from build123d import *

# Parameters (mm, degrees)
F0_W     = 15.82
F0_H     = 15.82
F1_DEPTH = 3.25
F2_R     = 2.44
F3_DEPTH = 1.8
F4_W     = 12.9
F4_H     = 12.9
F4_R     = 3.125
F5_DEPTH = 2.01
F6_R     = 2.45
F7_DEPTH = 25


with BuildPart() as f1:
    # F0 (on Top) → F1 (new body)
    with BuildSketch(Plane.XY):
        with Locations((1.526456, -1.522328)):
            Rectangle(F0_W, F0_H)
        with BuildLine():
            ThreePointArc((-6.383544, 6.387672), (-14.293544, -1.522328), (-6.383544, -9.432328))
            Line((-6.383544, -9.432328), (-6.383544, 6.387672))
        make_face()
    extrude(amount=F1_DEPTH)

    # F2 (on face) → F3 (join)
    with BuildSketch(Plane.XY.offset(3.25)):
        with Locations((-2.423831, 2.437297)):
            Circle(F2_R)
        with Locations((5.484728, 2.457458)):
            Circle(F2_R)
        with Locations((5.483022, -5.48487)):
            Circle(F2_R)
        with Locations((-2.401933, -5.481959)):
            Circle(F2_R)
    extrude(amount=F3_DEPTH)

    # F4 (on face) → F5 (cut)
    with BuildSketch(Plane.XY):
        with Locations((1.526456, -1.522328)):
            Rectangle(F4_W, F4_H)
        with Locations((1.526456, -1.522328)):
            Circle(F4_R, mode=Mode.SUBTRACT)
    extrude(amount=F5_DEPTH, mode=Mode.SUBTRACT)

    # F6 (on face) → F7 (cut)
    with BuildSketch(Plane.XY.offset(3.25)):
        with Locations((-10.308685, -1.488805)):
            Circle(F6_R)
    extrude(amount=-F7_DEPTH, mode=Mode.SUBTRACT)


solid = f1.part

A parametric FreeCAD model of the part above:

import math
import FreeCAD as App
import Part
import Sketcher

V = App.Vector

doc = App.newDocument("Part")
body = doc.addObject("PartDesign::Body", "Body")

# Sketch on XY plane
sketch1 = body.newObject("Sketcher::SketchObject", "Sketch")
sketch1.AttachmentSupport = (doc.getObject("XY_Plane"), [""])
sketch1.MapMode = "FlatFace"
sketch1.addGeometry([
    Part.LineSegment(V(-6.383544, -9.432328, 0), V(9.436456, -9.432328, 0)),
    Part.LineSegment(V(9.436456, -9.432328, 0), V(9.436456, 6.387672, 0)),
    Part.LineSegment(V(9.436456, 6.387672, 0), V(-6.383544, 6.387672, 0)),
    Part.ArcOfCircle(Part.Circle(V(-6.383544, -1.522328, 0), V(0, 0, 1), 7.91), math.radians(90), math.radians(270)),
], False)
sketch1.addConstraint([
    Sketcher.Constraint("Coincident", 0, 2, 1, 1),
    Sketcher.Constraint("Coincident", 1, 2, 2, 1),
    Sketcher.Constraint("Tangent", 2, 2, 3, 1),
    Sketcher.Constraint("Tangent", 3, 2, 0, 1),
    Sketcher.Constraint("Horizontal", 0),
    Sketcher.Constraint("Vertical", 1),
    Sketcher.Constraint("Horizontal", 2),
    Sketcher.Constraint("Equal", 2, 1),
    Sketcher.Constraint("Radius", 3, 7.91),
    Sketcher.Constraint("DistanceX", 3, 3, -1, 1, 6.383544),
    Sketcher.Constraint("DistanceY", 3, 3, -1, 1, 1.522328),
])
pad1 = body.newObject("PartDesign::Pad", "Pad")
pad1.Profile = sketch1
pad1.Length = 3.25

# Sketch on XY plane
sketch2 = body.newObject("Sketcher::SketchObject", "Sketch001")
sketch2.AttachmentSupport = (doc.getObject("XY_Plane"), [""])
sketch2.MapMode = "FlatFace"
sketch2.AttachmentOffset = App.Placement(V(0, 0, 3.25), App.Rotation())
sketch2.addGeometry([
    Part.Circle(V(-2.423831, 2.437297, 0), V(0, 0, 1), 2.44),
    Part.Circle(V(5.484728, 2.457458, 0), V(0, 0, 1), 2.44),
    Part.Circle(V(5.483022, -5.48487, 0), V(0, 0, 1), 2.44),
    Part.Circle(V(-2.401933, -5.481959, 0), V(0, 0, 1), 2.44),
], False)
sketch2.addConstraint([
    Sketcher.Constraint("Equal", 0, 1),
    Sketcher.Constraint("Equal", 1, 2),
    Sketcher.Constraint("Equal", 2, 3),
    Sketcher.Constraint("Diameter", 0, 4.88),
    Sketcher.Constraint("DistanceX", 0, 3, -1, 1, 2.423831),
    Sketcher.Constraint("DistanceY", 2, 3, -1, 1, 5.48487),
    Sketcher.Constraint("DistanceY", 3, 3, -1, 1, 5.481959),
    Sketcher.Constraint("DistanceX", 0, 3, 1, 3, 7.908559),
    Sketcher.Constraint("DistanceY", 0, 3, 1, 3, 0.020161),
    Sketcher.Constraint("DistanceX", 3, 3, 1, 3, 7.886661),
    Sketcher.Constraint("DistanceY", -1, 1, 0, 3, 2.437297),
    Sketcher.Constraint("DistanceX", -1, 1, 2, 3, 5.483022),
])
pad2 = body.newObject("PartDesign::Pad", "Pad001")
pad2.Profile = sketch2
pad2.Length = 1.8

# Sketch on XY plane
sketch3 = body.newObject("Sketcher::SketchObject", "Sketch002")
sketch3.AttachmentSupport = (doc.getObject("XY_Plane"), [""])
sketch3.MapMode = "FlatFace"
sketch3.addGeometry([
    Part.LineSegment(V(-4.923544, 4.927672, 0), V(-4.923544, -7.972328, 0)),  # 0
    Part.LineSegment(V(-4.923544, -7.972328, 0), V(7.976456, -7.972328, 0)),  # 1
    Part.LineSegment(V(7.976456, -7.972328, 0), V(7.976456, 4.927672, 0)),  # 2
    Part.LineSegment(V(7.976456, 4.927672, 0), V(-4.923544, 4.927672, 0)),  # 3
    Part.Circle(V(1.526456, -1.522328, 0), V(0, 0, 1), 3.125),  # 4
], False)
sketch3.addConstraint([
    Sketcher.Constraint("Coincident", 0, 2, 1, 1),
    Sketcher.Constraint("Coincident", 1, 2, 2, 1),
    Sketcher.Constraint("Coincident", 2, 2, 3, 1),
    Sketcher.Constraint("Coincident", 3, 2, 0, 1),
    Sketcher.Constraint("Vertical", 0),
    Sketcher.Constraint("Horizontal", 1),
    Sketcher.Constraint("Vertical", 2),
    Sketcher.Constraint("Horizontal", 3),
    Sketcher.Constraint("Equal", 3, 0),
    Sketcher.Constraint("Diameter", 4, 6.25),
    Sketcher.Constraint("DistanceX", 1, 1, 1, 2, 12.9),
    Sketcher.Constraint("DistanceX", 0, 2, 4, 3, 6.45),
    Sketcher.Constraint("DistanceY", 0, 2, 4, 3, 6.45),
    Sketcher.Constraint("DistanceX", -1, 1, 4, 3, 1.526456),
    Sketcher.Constraint("DistanceY", 4, 3, -1, 1, 1.522328),
])
pocket1 = body.newObject("PartDesign::Pocket", "Pocket")
pocket1.Profile = sketch3
pocket1.Length = 2.01
pocket1.Reversed = True

# Sketch on XY plane
sketch4 = body.newObject("Sketcher::SketchObject", "Sketch003")
sketch4.AttachmentSupport = (doc.getObject("XY_Plane"), [""])
sketch4.MapMode = "FlatFace"
sketch4.AttachmentOffset = App.Placement(V(0, 0, 3.25), App.Rotation())
sketch4.addGeometry(Part.Circle(V(-10.308685, -1.488805, 0), V(0, 0, 1), 2.45), False)
sketch4.addConstraint([
    Sketcher.Constraint("Diameter", 0, 4.9),
    Sketcher.Constraint("DistanceX", 0, 3, -1, 1, 10.308685),
    Sketcher.Constraint("DistanceY", 0, 3, -1, 1, 1.488805),
])
pocket2 = body.newObject("PartDesign::Pocket", "Pocket001")
pocket2.Profile = sketch4
pocket2.Length = 25

doc.recompute()
